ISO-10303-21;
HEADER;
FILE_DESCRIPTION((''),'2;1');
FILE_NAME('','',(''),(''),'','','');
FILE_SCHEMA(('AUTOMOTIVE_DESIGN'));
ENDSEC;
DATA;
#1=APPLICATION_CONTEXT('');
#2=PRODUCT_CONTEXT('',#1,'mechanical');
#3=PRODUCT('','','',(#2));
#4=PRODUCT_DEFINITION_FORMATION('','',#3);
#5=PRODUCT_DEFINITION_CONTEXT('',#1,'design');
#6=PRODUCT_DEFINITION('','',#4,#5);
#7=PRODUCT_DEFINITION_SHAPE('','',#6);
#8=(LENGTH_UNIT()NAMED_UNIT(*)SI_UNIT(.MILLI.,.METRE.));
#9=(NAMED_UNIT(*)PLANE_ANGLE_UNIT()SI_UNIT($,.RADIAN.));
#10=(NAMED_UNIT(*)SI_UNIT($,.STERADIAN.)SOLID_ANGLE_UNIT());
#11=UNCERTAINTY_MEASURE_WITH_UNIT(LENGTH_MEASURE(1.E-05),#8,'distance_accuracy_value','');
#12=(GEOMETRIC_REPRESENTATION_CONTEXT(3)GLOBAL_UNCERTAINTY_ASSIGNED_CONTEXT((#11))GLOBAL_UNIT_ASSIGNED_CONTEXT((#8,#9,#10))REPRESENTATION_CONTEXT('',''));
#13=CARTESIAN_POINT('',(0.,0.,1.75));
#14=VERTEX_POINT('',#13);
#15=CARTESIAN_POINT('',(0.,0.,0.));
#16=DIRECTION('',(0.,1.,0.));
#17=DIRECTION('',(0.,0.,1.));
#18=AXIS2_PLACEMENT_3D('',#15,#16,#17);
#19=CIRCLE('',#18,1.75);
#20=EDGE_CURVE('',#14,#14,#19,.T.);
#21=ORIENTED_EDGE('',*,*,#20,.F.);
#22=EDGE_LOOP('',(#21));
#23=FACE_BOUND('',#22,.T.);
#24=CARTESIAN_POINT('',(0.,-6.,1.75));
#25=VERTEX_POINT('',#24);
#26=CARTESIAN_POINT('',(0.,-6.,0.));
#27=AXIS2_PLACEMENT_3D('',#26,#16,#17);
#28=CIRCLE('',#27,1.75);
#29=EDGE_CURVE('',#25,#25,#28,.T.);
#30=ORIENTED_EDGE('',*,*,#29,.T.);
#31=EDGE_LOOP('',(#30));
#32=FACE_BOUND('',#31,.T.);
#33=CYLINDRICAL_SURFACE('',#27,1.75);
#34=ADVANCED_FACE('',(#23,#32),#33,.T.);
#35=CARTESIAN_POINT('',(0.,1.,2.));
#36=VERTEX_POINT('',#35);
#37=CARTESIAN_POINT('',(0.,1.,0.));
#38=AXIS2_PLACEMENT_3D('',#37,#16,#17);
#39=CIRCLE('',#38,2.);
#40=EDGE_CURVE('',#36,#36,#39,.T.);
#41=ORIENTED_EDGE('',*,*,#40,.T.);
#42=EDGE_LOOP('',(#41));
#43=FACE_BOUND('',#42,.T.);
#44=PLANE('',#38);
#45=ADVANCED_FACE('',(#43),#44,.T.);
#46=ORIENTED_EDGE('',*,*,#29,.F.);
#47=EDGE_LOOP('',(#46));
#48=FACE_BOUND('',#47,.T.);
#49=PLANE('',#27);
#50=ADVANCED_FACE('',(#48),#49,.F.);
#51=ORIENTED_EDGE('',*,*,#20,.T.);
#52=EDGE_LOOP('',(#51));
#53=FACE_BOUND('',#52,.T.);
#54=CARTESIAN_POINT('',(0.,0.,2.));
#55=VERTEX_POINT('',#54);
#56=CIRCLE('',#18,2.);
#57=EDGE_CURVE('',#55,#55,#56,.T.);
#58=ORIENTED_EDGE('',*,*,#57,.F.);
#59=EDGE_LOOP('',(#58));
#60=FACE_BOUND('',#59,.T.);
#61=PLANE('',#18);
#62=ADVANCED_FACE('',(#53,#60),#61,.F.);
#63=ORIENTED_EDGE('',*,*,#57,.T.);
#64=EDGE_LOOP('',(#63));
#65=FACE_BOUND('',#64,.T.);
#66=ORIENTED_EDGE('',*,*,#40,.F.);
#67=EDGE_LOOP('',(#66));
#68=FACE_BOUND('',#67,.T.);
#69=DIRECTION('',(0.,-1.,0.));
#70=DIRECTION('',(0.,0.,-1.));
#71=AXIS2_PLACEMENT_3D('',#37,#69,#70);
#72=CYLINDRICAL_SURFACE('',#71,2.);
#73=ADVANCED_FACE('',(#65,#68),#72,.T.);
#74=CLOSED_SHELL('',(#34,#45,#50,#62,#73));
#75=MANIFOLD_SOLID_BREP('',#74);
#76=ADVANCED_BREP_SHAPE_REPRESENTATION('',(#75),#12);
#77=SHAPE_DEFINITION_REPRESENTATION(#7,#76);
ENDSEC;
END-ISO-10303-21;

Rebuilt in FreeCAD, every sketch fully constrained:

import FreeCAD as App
import Part
import Sketcher

doc = App.newDocument("Part")
body = doc.addObject("PartDesign::Body", "Body")

# Sketch on XZ plane
sketch1 = body.newObject("Sketcher::SketchObject", "Sketch")
sketch1.AttachmentSupport = (doc.getObject("XZ_Plane"), [""])
sketch1.MapMode = "FlatFace"
sketch1.addGeometry(Part.Circle(App.Vector(0, 0, 0), App.Vector(0, 0, 1), 1.8), False)
sketch1.addConstraint([
    Sketcher.Constraint("Coincident", 0, 3, -1, 1),
    Sketcher.Constraint("Diameter", 0, 3.5),
])
pad1 = body.newObject("PartDesign::Pad", "Pad")
pad1.Profile = sketch1
pad1.Length = 6

# Sketch on XZ plane
sketch2 = body.newObject("Sketcher::SketchObject", "Sketch001")
sketch2.AttachmentSupport = (doc.getObject("XZ_Plane"), [""])
sketch2.MapMode = "FlatFace"
sketch2.addGeometry(Part.Circle(App.Vector(0, 0, 0), App.Vector(0, 0, 1), 2), False)
sketch2.addConstraint([
    Sketcher.Constraint("Coincident", 0, 3, -1, 1),
    Sketcher.Constraint("Diameter", 0, 4.0),
])
pad2 = body.newObject("PartDesign::Pad", "Pad001")
pad2.Profile = sketch2
pad2.Length = 1
pad2.Reversed = True

doc.recompute()
